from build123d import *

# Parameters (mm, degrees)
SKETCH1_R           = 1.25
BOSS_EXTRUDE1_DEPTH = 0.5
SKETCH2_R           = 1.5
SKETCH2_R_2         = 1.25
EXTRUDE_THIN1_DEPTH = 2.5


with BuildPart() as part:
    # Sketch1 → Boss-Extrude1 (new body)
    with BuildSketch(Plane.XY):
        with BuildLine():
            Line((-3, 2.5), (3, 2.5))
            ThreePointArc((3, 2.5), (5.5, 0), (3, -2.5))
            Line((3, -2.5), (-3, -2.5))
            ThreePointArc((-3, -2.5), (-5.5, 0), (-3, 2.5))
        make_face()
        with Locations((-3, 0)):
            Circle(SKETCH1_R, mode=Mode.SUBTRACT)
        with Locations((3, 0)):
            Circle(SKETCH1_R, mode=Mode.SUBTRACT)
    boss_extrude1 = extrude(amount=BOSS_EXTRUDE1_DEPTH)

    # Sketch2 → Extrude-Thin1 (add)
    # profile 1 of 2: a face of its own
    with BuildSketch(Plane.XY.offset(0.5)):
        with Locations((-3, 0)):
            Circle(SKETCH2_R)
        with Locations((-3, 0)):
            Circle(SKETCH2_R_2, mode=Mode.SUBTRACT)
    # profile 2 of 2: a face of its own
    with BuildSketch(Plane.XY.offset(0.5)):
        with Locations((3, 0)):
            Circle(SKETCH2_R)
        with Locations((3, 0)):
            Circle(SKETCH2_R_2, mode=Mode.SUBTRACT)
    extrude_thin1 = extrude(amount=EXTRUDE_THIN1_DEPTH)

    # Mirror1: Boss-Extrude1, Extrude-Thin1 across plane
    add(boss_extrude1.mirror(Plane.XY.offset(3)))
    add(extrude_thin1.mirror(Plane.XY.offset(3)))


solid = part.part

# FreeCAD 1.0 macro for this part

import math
import FreeCAD as App
import Part
import Sketcher
Q = App.Units.Quantity

doc = App.newDocument("Part")
body = doc.addObject("PartDesign::Body", "Body")

# Sketch on XY plane
sketch1 = body.newObject("Sketcher::SketchObject", "Sketch")
sketch1.AttachmentSupport = (doc.getObject("XY_Plane"), [""])
sketch1.MapMode = "FlatFace"
sketch1.addGeometry([
    Part.LineSegment(App.Vector(3, 2.5, 0), App.Vector(-3, 2.5, 0)),  # 0
    Part.ArcOfCircle(Part.Circle(App.Vector(-3, 0, 0), App.Vector(0, 0, 1), 2.5), math.radians(90), math.radians(270)),  # 1
    Part.LineSegment(App.Vector(-3, -2.5, 0), App.Vector(3, -2.5, 0)),  # 2
    Part.ArcOfCircle(Part.Circle(App.Vector(3, 0, 0), App.Vector(0, 0, 1), 2.5), math.radians(-90), math.radians(90)),  # 3
    Part.Circle(App.Vector(3, 0, 0), App.Vector(0, 0, 1), 1.25),  # 4
    Part.Circle(App.Vector(-3, 0, 0), App.Vector(0, 0, 1), 1.25),  # 5
], False)
sketch1.addConstraint([
    Sketcher.Constraint("Tangent", 0, 2, 1, 1),
    Sketcher.Constraint("Tangent", 1, 2, 2, 1),
    Sketcher.Constraint("Tangent", 2, 2, 3, 1),
    Sketcher.Constraint("Tangent", 3, 2, 0, 1),
    Sketcher.Constraint("Horizontal", 0),
    Sketcher.Constraint("Horizontal", 2),
    Sketcher.Constraint("Coincident", 4, 3, 3, 3),
    Sketcher.Constraint("Coincident", 5, 3, 1, 3),
    Sketcher.Constraint("Equal", 4, 5),
    Sketcher.Constraint("Symmetric", 1, 3, 3, 3, -1, 1),
    Sketcher.Constraint("Diameter", 4, Q("2.5 mm")),
    Sketcher.Constraint("Radius", 1, Q("2.5 mm")),
    Sketcher.Constraint("DistanceX", 0, 2, 0, 1, Q("6 mm")),
])
pad1 = body.newObject("PartDesign::Pad", "Pad")
pad1.Profile = sketch1
pad1.Length = 0.5

# Sketch on XY plane
sketch2 = body.newObject("Sketcher::SketchObject", "Sketch001")
sketch2.AttachmentSupport = (doc.getObject("XY_Plane"), [""])
sketch2.MapMode = "FlatFace"
sketch2.AttachmentOffset = App.Placement(App.Vector(0, 0, 0.5), App.Rotation())
sketch2.addGeometry([
    Part.Circle(App.Vector(-3, 0, 0), App.Vector(0, 0, 1), 1.5),
    Part.Circle(App.Vector(-3, 0, 0), App.Vector(0, 0, 1), 1.25),
    Part.Circle(App.Vector(3, 0, 0), App.Vector(0, 0, 1), 1.5),
    Part.Circle(App.Vector(3, 0, 0), App.Vector(0, 0, 1), 1.25),
], False)
sketch2.addConstraint([
    Sketcher.Constraint("Coincident", 1, 3, 0, 3),
    Sketcher.Constraint("Coincident", 3, 3, 2, 3),
    Sketcher.Constraint("Equal", 0, 2),
    Sketcher.Constraint("Equal", 1, 3),
    Sketcher.Constraint("Symmetric", 0, 3, 2, 3, -1, 1),
    Sketcher.Constraint("PointOnObject", 0, 3, -1),
    Sketcher.Constraint("Diameter", 0, Q("3 mm")),
    Sketcher.Constraint("Diameter", 1, Q("2.5 mm")),
    Sketcher.Constraint("DistanceX", 0, 3, -1, 1, Q("3 mm")),
])
pad2 = body.newObject("PartDesign::Pad", "Pad001")
pad2.Profile = sketch2
pad2.Length = 2.5
doc.recompute()

datumplane = body.newObject("PartDesign::Plane", "DatumPlane")
datumplane.AttachmentSupport = (doc.getObject("XY_Plane"), [""])
datumplane.MapMode = "FlatFace"
datumplane.AttachmentOffset = App.Placement(App.Vector(0, 0, 3), App.Rotation())
mirrored = body.newObject("PartDesign::Mirrored", "Mirrored")
mirrored.Originals = [pad1, pad2]
mirrored.MirrorPlane = (datumplane, [""])
body.Tip = mirrored

doc.recompute()
